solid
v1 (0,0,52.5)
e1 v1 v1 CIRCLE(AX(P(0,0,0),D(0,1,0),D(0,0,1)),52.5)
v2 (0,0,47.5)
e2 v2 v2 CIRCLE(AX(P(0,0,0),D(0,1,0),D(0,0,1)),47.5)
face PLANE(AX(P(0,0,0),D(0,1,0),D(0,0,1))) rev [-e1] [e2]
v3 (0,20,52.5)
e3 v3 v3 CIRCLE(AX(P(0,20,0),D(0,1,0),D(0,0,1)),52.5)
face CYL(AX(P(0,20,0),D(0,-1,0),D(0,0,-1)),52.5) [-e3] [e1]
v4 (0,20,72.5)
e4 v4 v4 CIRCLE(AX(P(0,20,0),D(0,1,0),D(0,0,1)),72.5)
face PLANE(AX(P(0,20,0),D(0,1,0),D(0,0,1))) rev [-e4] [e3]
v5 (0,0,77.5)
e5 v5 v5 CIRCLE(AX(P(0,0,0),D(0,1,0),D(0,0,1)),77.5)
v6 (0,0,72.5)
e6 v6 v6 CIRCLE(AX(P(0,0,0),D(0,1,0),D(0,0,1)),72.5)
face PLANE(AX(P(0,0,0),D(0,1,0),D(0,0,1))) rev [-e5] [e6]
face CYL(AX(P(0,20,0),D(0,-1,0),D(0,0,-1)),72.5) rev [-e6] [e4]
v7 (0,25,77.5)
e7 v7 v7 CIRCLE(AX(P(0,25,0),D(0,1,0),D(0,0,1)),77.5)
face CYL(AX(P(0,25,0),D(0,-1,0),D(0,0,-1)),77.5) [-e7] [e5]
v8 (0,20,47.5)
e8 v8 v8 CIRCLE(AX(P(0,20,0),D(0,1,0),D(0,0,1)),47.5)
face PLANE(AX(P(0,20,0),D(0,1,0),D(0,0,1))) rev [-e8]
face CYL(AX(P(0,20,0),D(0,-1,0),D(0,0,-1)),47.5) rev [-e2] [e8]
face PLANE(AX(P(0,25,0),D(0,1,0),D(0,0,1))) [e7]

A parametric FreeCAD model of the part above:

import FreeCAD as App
import Part
import Sketcher
from FreeCAD import Vector

doc = App.newDocument("Part")
body = doc.addObject("PartDesign::Body", "Body")

sketch1 = body.newObject("Sketcher::SketchObject", "Sketch")
sketch1.AttachmentSupport = (doc.getObject("XZ_Plane"), [""])
sketch1.MapMode = "FlatFace"
sketch1.addGeometry([
    Part.Circle(Vector(0, 0, 0), Vector(0, 0, 1), 52),
    Part.Circle(Vector(0, 0, 0), Vector(0, 0, 1), 48),
], False)
sketch1.addConstraint([
    Sketcher.Constraint("Coincident", 0, 3, -1, 1),
    Sketcher.Constraint("Coincident", 1, 3, -1, 1),
    Sketcher.Constraint("Diameter", 0, 105.0),
    Sketcher.Constraint("Diameter", 1, 95.0),
])
pad1 = body.newObject("PartDesign::Pad", "Pad")
pad1.Profile = sketch1
pad1.Length = 20
pad1.Reversed = True
body2 = doc.addObject("PartDesign::Body", "Body001")

sketch2 = body2.newObject("Sketcher::SketchObject", "Sketch001")
sketch2.AttachmentSupport = (doc.getObject("XZ_Plane001"), [""])
sketch2.MapMode = "FlatFace"
sketch2.addGeometry([
    Part.Circle(Vector(0, 0, 0), Vector(0, 0, 1), 78),
    Part.Circle(Vector(0, 0, 0), Vector(0, 0, 1), 72),
], False)
sketch2.addConstraint([
    Sketcher.Constraint("Coincident", 0, 3, -1, 1),
    Sketcher.Constraint("Coincident", 1, 3, -1, 1),
    Sketcher.Constraint("Diameter", 0, 155.0),
    Sketcher.Constraint("Diameter", 1, 145.0),
])
pad2 = body2.newObject("PartDesign::Pad", "Pad001")
pad2.Profile = sketch2
pad2.Length = 20
pad2.Reversed = True
body.AllowCompound = True
doc.recompute()

boolean = body.newObject("PartDesign::Boolean", "Boolean")
boolean.Type = "Fuse"
boolean.addObjects([body2])

sketch3 = body.newObject("Sketcher::SketchObject", "Sketch002")
sketch3.AttachmentSupport = (doc.getObject("XZ_Plane"), [""])
sketch3.MapMode = "FlatFace"
sketch3.AttachmentOffset = App.Placement(Vector(0, 0, -20), App.Rotation())
sketch3.addGeometry(Part.Circle(Vector(0, 0, 0), Vector(0, 0, 1), 78), False)
sketch3.addConstraint([
    Sketcher.Constraint("Coincident", 0, 3, -1, 1),
    Sketcher.Constraint("Diameter", 0, 155.0),
])
pad3 = body.newObject("PartDesign::Pad", "Pad002")
pad3.Profile = sketch3
pad3.Length = 5
pad3.Reversed = True

doc.recompute()
